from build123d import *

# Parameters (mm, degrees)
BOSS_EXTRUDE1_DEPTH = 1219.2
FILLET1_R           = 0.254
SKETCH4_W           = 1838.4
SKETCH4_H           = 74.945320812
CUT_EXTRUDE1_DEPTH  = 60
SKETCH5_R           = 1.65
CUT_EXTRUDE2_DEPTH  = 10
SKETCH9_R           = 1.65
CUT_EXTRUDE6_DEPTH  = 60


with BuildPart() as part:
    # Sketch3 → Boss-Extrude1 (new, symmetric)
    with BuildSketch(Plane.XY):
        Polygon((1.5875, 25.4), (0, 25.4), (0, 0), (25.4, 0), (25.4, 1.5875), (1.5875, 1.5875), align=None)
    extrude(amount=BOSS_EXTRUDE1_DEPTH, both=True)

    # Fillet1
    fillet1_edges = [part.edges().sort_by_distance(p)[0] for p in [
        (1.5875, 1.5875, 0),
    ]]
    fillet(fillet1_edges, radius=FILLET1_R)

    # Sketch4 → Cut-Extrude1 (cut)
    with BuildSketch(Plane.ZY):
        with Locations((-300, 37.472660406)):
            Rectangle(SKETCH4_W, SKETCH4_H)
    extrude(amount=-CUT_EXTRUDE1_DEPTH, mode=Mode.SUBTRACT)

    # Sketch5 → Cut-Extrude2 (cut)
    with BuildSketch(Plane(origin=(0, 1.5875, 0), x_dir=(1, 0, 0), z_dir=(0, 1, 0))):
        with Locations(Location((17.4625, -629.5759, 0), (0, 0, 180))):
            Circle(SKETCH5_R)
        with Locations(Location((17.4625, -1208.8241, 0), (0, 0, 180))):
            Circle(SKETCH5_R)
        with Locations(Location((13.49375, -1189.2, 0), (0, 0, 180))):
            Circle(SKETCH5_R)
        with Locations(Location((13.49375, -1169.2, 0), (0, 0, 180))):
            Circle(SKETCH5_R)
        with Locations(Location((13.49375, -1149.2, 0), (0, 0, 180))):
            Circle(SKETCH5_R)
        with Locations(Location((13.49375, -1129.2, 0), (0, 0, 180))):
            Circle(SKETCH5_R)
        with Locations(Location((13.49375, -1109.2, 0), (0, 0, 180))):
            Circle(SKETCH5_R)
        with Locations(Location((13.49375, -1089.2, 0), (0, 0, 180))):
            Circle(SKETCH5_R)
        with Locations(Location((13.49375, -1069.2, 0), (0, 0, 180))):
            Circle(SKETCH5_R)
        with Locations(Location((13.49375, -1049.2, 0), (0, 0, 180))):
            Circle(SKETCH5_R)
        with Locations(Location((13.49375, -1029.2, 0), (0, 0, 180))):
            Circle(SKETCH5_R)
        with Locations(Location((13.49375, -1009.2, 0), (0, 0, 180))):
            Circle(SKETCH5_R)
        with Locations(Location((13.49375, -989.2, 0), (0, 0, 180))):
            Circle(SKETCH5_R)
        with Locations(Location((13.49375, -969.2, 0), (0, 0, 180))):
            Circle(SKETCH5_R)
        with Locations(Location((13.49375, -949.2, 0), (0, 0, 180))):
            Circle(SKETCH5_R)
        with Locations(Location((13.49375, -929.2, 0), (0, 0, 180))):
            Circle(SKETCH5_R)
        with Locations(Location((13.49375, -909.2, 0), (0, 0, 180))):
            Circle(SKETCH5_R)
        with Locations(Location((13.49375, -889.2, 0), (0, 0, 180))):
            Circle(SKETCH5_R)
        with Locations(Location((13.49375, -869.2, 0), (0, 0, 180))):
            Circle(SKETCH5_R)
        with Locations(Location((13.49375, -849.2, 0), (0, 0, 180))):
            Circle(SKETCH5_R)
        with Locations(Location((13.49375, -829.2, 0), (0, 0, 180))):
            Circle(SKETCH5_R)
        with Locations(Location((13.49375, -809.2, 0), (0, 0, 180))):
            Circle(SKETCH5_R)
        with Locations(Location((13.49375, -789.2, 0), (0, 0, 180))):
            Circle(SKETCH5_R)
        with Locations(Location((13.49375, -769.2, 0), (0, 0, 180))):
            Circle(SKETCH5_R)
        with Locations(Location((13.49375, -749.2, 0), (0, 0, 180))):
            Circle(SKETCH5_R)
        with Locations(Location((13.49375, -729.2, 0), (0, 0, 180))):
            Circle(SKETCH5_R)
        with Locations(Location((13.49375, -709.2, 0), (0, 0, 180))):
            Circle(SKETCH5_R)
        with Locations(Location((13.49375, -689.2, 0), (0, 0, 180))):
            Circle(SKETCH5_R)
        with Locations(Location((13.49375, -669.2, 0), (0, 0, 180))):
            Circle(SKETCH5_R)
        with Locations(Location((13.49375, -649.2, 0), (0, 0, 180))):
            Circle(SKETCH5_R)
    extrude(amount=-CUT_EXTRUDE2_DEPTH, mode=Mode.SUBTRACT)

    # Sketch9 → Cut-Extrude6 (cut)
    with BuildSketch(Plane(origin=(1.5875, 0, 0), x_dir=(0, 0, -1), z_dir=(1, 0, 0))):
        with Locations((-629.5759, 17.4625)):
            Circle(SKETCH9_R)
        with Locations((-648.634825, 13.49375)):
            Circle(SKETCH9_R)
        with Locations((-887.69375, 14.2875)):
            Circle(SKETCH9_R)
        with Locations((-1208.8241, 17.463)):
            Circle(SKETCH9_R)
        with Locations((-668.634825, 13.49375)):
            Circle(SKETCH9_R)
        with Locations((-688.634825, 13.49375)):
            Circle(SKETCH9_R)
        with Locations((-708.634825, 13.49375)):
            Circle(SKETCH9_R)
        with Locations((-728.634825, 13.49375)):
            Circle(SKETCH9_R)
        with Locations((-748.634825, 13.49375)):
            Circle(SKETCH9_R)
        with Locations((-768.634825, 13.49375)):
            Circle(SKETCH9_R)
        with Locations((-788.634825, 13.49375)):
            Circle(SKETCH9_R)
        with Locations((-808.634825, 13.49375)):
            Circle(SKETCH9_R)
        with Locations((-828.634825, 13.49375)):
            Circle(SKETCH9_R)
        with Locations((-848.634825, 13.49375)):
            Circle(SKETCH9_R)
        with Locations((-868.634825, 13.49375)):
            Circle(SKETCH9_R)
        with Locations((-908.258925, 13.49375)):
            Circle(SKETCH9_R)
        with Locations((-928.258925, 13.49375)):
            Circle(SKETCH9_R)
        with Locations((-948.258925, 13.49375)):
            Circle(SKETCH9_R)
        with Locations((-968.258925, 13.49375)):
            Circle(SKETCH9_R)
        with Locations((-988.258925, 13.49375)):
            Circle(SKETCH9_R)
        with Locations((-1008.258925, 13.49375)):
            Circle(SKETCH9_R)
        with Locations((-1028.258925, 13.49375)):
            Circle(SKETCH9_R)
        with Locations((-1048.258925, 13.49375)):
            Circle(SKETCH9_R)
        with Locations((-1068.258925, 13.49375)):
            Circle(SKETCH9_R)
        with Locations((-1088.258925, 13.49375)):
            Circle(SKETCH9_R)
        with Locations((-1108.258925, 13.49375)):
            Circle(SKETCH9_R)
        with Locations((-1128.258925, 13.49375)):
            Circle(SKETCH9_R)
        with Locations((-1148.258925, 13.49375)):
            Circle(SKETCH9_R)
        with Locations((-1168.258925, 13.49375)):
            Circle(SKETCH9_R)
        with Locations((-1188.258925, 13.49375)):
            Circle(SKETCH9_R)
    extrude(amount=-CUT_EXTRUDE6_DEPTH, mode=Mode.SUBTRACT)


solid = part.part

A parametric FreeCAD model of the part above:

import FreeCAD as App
import Part
import Sketcher

V = App.Vector
Q = App.Units.Quantity


def edges_at(feature, points):
    """Names of the edges that pass closest to the given points."""
    edges = feature.Shape.Edges
    near = lambda p: min(range(len(edges)), key=lambda i: edges[i].distToShape(Part.Vertex(*p))[0])
    return sorted({f"Edge{near(p) + 1}" for p in points})

doc = App.newDocument("Part")
body = doc.addObject("PartDesign::Body", "Body")

# Sketch on XY plane
sketch1 = doc.addObject("Sketcher::SketchObject", "Sketch")
body.addObject(sketch1)
sketch1.AttachmentSupport = (doc.XY_Plane, [""])
sketch1.MapMode = "FlatFace"
sketch1.addGeometry([
    Part.LineSegment(V(1.5875, 25.4, 0), V(0, 25.4, 0)),  # 0
    Part.LineSegment(V(0, 25.4, 0), V(0, 0, 0)),  # 1
    Part.LineSegment(V(0, 0, 0), V(25.4, 0, 0)),  # 2
    Part.LineSegment(V(25.4, 0, 0), V(25.4, 1.5875, 0)),  # 3
    Part.LineSegment(V(25.4, 1.5875, 0), V(1.5875, 1.5875, 0)),  # 4
    Part.LineSegment(V(1.5875, 1.5875, 0), V(1.5875, 25.4, 0)),  # 5
], False)
sketch1.addConstraint([
    Sketcher.Constraint("Coincident", 0, 2, 1, 1),
    Sketcher.Constraint("Coincident", 1, 2, 2, 1),
    Sketcher.Constraint("Coincident", 2, 2, 3, 1),
    Sketcher.Constraint("Coincident", 3, 2, 4, 1),
    Sketcher.Constraint("Coincident", 4, 2, 5, 1),
    Sketcher.Constraint("Coincident", 5, 2, 0, 1),
    Sketcher.Constraint("Horizontal", 0),
    Sketcher.Constraint("Vertical", 1),
    Sketcher.Constraint("Horizontal", 2),
    Sketcher.Constraint("Vertical", 3),
    Sketcher.Constraint("Horizontal", 4),
    Sketcher.Constraint("Vertical", 5),
    Sketcher.Constraint("Coincident", 1, 2, -1, 1),
    Sketcher.Constraint("Equal", 2, 1),
    Sketcher.Constraint("Equal", 0, 3),
    Sketcher.Constraint("DistanceX", 2, 1, 2, 2, Q("1 in")),
    Sketcher.Constraint("DistanceX", 0, 2, 0, 1, Q("0.0625 in")),
])
pad1 = doc.addObject("PartDesign::Pad", "Pad")
body.addObject(pad1)
pad1.Profile = sketch1
pad1.Length = Q("96 in")
pad1.Midplane = True
doc.recompute()

fillet = doc.addObject("PartDesign::Fillet", "Fillet")
body.addObject(fillet)
fillet.Base = (pad1, edges_at(pad1, [(1.587, 1.587, 0)]))
fillet.Radius = Q("0.01 in")

# Sketch on YZ plane
sketch2 = doc.addObject("Sketcher::SketchObject", "Sketch001")
body.addObject(sketch2)
sketch2.AttachmentSupport = (doc.YZ_Plane, [""])
sketch2.MapMode = "FlatFace"
sketch2.addGeometry([
    Part.LineSegment(V(74.945321, -1219.2, 0), V(0, -1219.2, 0)),
    Part.LineSegment(V(0, -1219.2, 0), V(0, 619.2, 0)),
    Part.LineSegment(V(0, 619.2, 0), V(74.945321, 619.2, 0)),
    Part.LineSegment(V(74.945321, 619.2, 0), V(74.945321, -1219.2, 0)),
], False)
sketch2.addConstraint([
    Sketcher.Constraint("Coincident", 0, 2, 1, 1),
    Sketcher.Constraint("Coincident", 1, 2, 2, 1),
    Sketcher.Constraint("Coincident", 2, 2, 3, 1),
    Sketcher.Constraint("Coincident", 3, 2, 0, 1),
    Sketcher.Constraint("Horizontal", 0),
    Sketcher.Constraint("Vertical", 1),
    Sketcher.Constraint("Horizontal", 2),
    Sketcher.Constraint("Vertical", 3),
    Sketcher.Constraint("PointOnObject", 0, 2, -2),
    Sketcher.Constraint("DistanceY", 0, 2, -1, 1, Q("48 in")),
    Sketcher.Constraint("DistanceY", 1, 1, 1, 2, Q("1838.4 mm")),
    Sketcher.Constraint("DistanceX", 0, 2, 0, 1, Q("74.945321 mm")),
])
pocket1 = doc.addObject("PartDesign::Pocket", "Pocket")
body.addObject(pocket1)
pocket1.Profile = sketch2
pocket1.Length = 60
pocket1.Reversed = True

# Sketch on XZ plane
sketch3 = doc.addObject("Sketcher::SketchObject", "Sketch002")
body.addObject(sketch3)
sketch3.AttachmentSupport = (doc.XZ_Plane, [""])
sketch3.MapMode = "FlatFace"
sketch3.AttachmentOffset = App.Placement(V(0, 0, -0.0625 * 25.4), App.Rotation())
sketch3.addGeometry([
    Part.Circle(V(17.4625, 629.5759, 0), V(0, 0, 1), 1.65),  # 0
    Part.Circle(V(17.4625, 1208.8241, 0), V(0, 0, 1), 1.65),  # 1
    Part.Circle(V(13.49375, 1189.2, 0), V(0, 0, 1), 1.65),  # 2
    Part.Circle(V(13.49375, 1169.2, 0), V(0, 0, 1), 1.65),  # 3
    Part.Circle(V(13.49375, 1149.2, 0), V(0, 0, 1), 1.65),  # 4
    Part.Circle(V(13.49375, 1129.2, 0), V(0, 0, 1), 1.65),  # 5
    Part.Circle(V(13.49375, 1109.2, 0), V(0, 0, 1), 1.65),  # 6
    Part.Circle(V(13.49375, 1089.2, 0), V(0, 0, 1), 1.65),  # 7
    Part.Circle(V(13.49375, 1069.2, 0), V(0, 0, 1), 1.65),  # 8
    Part.Circle(V(13.49375, 1049.2, 0), V(0, 0, 1), 1.65),  # 9
    Part.Circle(V(13.49375, 1029.2, 0), V(0, 0, 1), 1.65),  # 10
    Part.Circle(V(13.49375, 1009.2, 0), V(0, 0, 1), 1.65),  # 11
    Part.Circle(V(13.49375, 989.2, 0), V(0, 0, 1), 1.65),  # 12
    Part.Circle(V(13.49375, 969.2, 0), V(0, 0, 1), 1.65),  # 13
    Part.Circle(V(13.49375, 949.2, 0), V(0, 0, 1), 1.65),  # 14
    Part.Circle(V(13.49375, 929.2, 0), V(0, 0, 1), 1.65),  # 15
    Part.Circle(V(13.49375, 909.2, 0), V(0, 0, 1), 1.65),  # 16
    Part.Circle(V(13.49375, 889.2, 0), V(0, 0, 1), 1.65),  # 17
    Part.Circle(V(13.49375, 869.2, 0), V(0, 0, 1), 1.65),  # 18
    Part.Circle(V(13.49375, 849.2, 0), V(0, 0, 1), 1.65),  # 19
    Part.Circle(V(13.49375, 829.2, 0), V(0, 0, 1), 1.65),  # 20
    Part.Circle(V(13.49375, 809.2, 0), V(0, 0, 1), 1.65),  # 21
    Part.Circle(V(13.49375, 789.2, 0), V(0, 0, 1), 1.65),  # 22
    Part.Circle(V(13.49375, 769.2, 0), V(0, 0, 1), 1.65),  # 23
    Part.Circle(V(13.49375, 749.2, 0), V(0, 0, 1), 1.65),  # 24
    Part.Circle(V(13.49375, 729.2, 0), V(0, 0, 1), 1.65),  # 25
    Part.Circle(V(13.49375, 709.2, 0), V(0, 0, 1), 1.65),  # 26
    Part.Circle(V(13.49375, 689.2, 0), V(0, 0, 1), 1.65),  # 27
    Part.Circle(V(13.49375, 669.2, 0), V(0, 0, 1), 1.65),  # 28
    Part.Circle(V(13.49375, 649.2, 0), V(0, 0, 1), 1.65),  # 29
], False)
sketch3.addConstraint([
    Sketcher.Constraint("Equal", 0, 1),
    Sketcher.Constraint("Equal", 1, 2),
    Sketcher.Constraint("Equal", 2, 3),
    Sketcher.Constraint("Equal", 3, 4),
    Sketcher.Constraint("Equal", 4, 5),
    Sketcher.Constraint("Equal", 5, 6),
    Sketcher.Constraint("Equal", 6, 7),
    Sketcher.Constraint("Equal", 7, 8),
    Sketcher.Constraint("Equal", 8, 9),
    Sketcher.Constraint("Equal", 9, 10),
    Sketcher.Constraint("Equal", 10, 11),
    Sketcher.Constraint("Equal", 11, 12),
    Sketcher.Constraint("Equal", 12, 13),
    Sketcher.Constraint("Equal", 13, 14),
    Sketcher.Constraint("Equal", 14, 15),
    Sketcher.Constraint("Equal", 15, 16),
    Sketcher.Constraint("Equal", 16, 17),
    Sketcher.Constraint("Equal", 17, 18),
    Sketcher.Constraint("Equal", 18, 19),
    Sketcher.Constraint("Equal", 19, 20),
    Sketcher.Constraint("Equal", 20, 21),
    Sketcher.Constraint("Equal", 21, 22),
    Sketcher.Constraint("Equal", 22, 23),
    Sketcher.Constraint("Equal", 23, 24),
    Sketcher.Constraint("Equal", 24, 25),
    Sketcher.Constraint("Equal", 25, 26),
    Sketcher.Constraint("Equal", 26, 27),
    Sketcher.Constraint("Equal", 27, 28),
    Sketcher.Constraint("Equal", 28, 29),
    Sketcher.Constraint("Vertical", 0, 3, 1, 3),
    Sketcher.Constraint("Vertical", 2, 3, 3, 3),
    Sketcher.Constraint("Vertical", 3, 3, 4, 3),
    Sketcher.Constraint("Vertical", 4, 3, 5, 3),
    Sketcher.Constraint("Vertical", 5, 3, 6, 3),
    Sketcher.Constraint("Vertical", 6, 3, 7, 3),
    Sketcher.Constraint("Vertical", 7, 3, 8, 3),
    Sketcher.Constraint("Vertical", 8, 3, 9, 3),
    Sketcher.Constraint("Vertical", 9, 3, 10, 3),
    Sketcher.Constraint("Vertical", 10, 3, 11, 3),
    Sketcher.Constraint("Vertical", 11, 3, 12, 3),
    Sketcher.Constraint("Vertical", 12, 3, 13, 3),
    Sketcher.Constraint("Vertical", 13, 3, 14, 3),
    Sketcher.Constraint("Vertical", 14, 3, 15, 3),
    Sketcher.Constraint("Vertical", 15, 3, 16, 3),
    Sketcher.Constraint("Vertical", 16, 3, 17, 3),
    Sketcher.Constraint("Vertical", 17, 3, 18, 3),
    Sketcher.Constraint("Vertical", 18, 3, 19, 3),
    Sketcher.Constraint("Vertical", 19, 3, 20, 3),
    Sketcher.Constraint("Vertical", 20, 3, 21, 3),
    Sketcher.Constraint("Vertical", 21, 3, 22, 3),
    Sketcher.Constraint("Vertical", 22, 3, 23, 3),
    Sketcher.Constraint("Vertical", 23, 3, 24, 3),
    Sketcher.Constraint("Vertical", 24, 3, 25, 3),
    Sketcher.Constraint("Vertical", 25, 3, 26, 3),
    Sketcher.Constraint("Vertical", 26, 3, 27, 3),
    Sketcher.Constraint("Vertical", 27, 3, 28, 3),
    Sketcher.Constraint("Vertical", 28, 3, 29, 3),
    Sketcher.Constraint("Diameter", 0, Q("3.3 mm")),
    Sketcher.Constraint("DistanceX", -1, 1, 0, 3, Q("0.6875 in")),
    Sketcher.Constraint("DistanceX", -1, 1, 2, 3, Q("0.53125 in")),
    Sketcher.Constraint("DistanceY", -1, 1, 1, 3, Q("47.5915 in")),
    Sketcher.Constraint("DistanceY", -1, 1, 0, 3, Q("629.5759 mm")),
    Sketcher.Constraint("DistanceY", -1, 1, 2, 3, Q("1189.2 mm")),
    Sketcher.Constraint("DistanceY", -1, 1, 3, 3, Q("1169.2 mm")),
    Sketcher.Constraint("DistanceY", -1, 1, 4, 3, Q("1149.2 mm")),
    Sketcher.Constraint("DistanceY", -1, 1, 5, 3, Q("1129.2 mm")),
    Sketcher.Constraint("DistanceY", -1, 1, 6, 3, Q("1109.2 mm")),
    Sketcher.Constraint("DistanceY", -1, 1, 7, 3, Q("1089.2 mm")),
    Sketcher.Constraint("DistanceY", -1, 1, 8, 3, Q("1069.2 mm")),
    Sketcher.Constraint("DistanceY", -1, 1, 9, 3, Q("1049.2 mm")),
    Sketcher.Constraint("DistanceY", -1, 1, 10, 3, Q("1029.2 mm")),
    Sketcher.Constraint("DistanceY", -1, 1, 11, 3, Q("1009.2 mm")),
    Sketcher.Constraint("DistanceY", -1, 1, 12, 3, Q("989.2 mm")),
    Sketcher.Constraint("DistanceY", -1, 1, 13, 3, Q("969.2 mm")),
    Sketcher.Constraint("DistanceY", -1, 1, 14, 3, Q("949.2 mm")),
    Sketcher.Constraint("DistanceY", -1, 1, 15, 3, Q("929.2 mm")),
    Sketcher.Constraint("DistanceY", -1, 1, 16, 3, Q("909.2 mm")),
    Sketcher.Constraint("DistanceY", -1, 1, 17, 3, Q("889.2 mm")),
    Sketcher.Constraint("DistanceY", -1, 1, 18, 3, Q("869.2 mm")),
    Sketcher.Constraint("DistanceY", -1, 1, 19, 3, Q("849.2 mm")),
    Sketcher.Constraint("DistanceY", -1, 1, 20, 3, Q("829.2 mm")),
    Sketcher.Constraint("DistanceY", -1, 1, 21, 3, Q("809.2 mm")),
    Sketcher.Constraint("DistanceY", -1, 1, 22, 3, Q("789.2 mm")),
    Sketcher.Constraint("DistanceY", -1, 1, 23, 3, Q("769.2 mm")),
    Sketcher.Constraint("DistanceY", -1, 1, 24, 3, Q("749.2 mm")),
    Sketcher.Constraint("DistanceY", -1, 1, 25, 3, Q("729.2 mm")),
    Sketcher.Constraint("DistanceY", -1, 1, 26, 3, Q("709.2 mm")),
    Sketcher.Constraint("DistanceY", -1, 1, 27, 3, Q("689.2 mm")),
    Sketcher.Constraint("DistanceY", -1, 1, 28, 3, Q("669.2 mm")),
    Sketcher.Constraint("DistanceY", -1, 1, 29, 3, Q("649.2 mm")),
])
pocket2 = doc.addObject("PartDesign::Pocket", "Pocket001")
body.addObject(pocket2)
pocket2.Profile = sketch3
pocket2.Length = 10
pocket2.Reversed = True

# Sketch on YZ plane
sketch4 = doc.addObject("Sketcher::SketchObject", "Sketch003")
body.addObject(sketch4)
sketch4.AttachmentSupport = (doc.YZ_Plane, [""])
sketch4.MapMode = "FlatFace"
sketch4.AttachmentOffset = App.Placement(V(0, 0, 0.0625 * 25.4), App.Rotation())
sketch4.addGeometry([
    Part.Circle(V(17.4625, 629.5759, 0), V(0, 0, 1), 1.65),  # 0
    Part.Circle(V(13.49375, 648.634825, 0), V(0, 0, 1), 1.65),  # 1
    Part.Circle(V(14.2875, 887.69375, 0), V(0, 0, 1), 1.65),  # 2
    Part.Circle(V(17.463, 1208.8241, 0), V(0, 0, 1), 1.65),  # 3
    Part.Circle(V(13.49375, 668.634825, 0), V(0, 0, 1), 1.65),  # 4
    Part.Circle(V(13.49375, 688.634825, 0), V(0, 0, 1), 1.65),  # 5
    Part.Circle(V(13.49375, 708.634825, 0), V(0, 0, 1), 1.65),  # 6
    Part.Circle(V(13.49375, 728.634825, 0), V(0, 0, 1), 1.65),  # 7
    Part.Circle(V(13.49375, 748.634825, 0), V(0, 0, 1), 1.65),  # 8
    Part.Circle(V(13.49375, 768.634825, 0), V(0, 0, 1), 1.65),  # 9
    Part.Circle(V(13.49375, 788.634825, 0), V(0, 0, 1), 1.65),  # 10
    Part.Circle(V(13.49375, 808.634825, 0), V(0, 0, 1), 1.65),  # 11
    Part.Circle(V(13.49375, 828.634825, 0), V(0, 0, 1), 1.65),  # 12
    Part.Circle(V(13.49375, 848.634825, 0), V(0, 0, 1), 1.65),  # 13
    Part.Circle(V(13.49375, 868.634825, 0), V(0, 0, 1), 1.65),  # 14
    Part.Circle(V(13.49375, 908.258925, 0), V(0, 0, 1), 1.65),  # 15
    Part.Circle(V(13.49375, 928.258925, 0), V(0, 0, 1), 1.65),  # 16
    Part.Circle(V(13.49375, 948.258925, 0), V(0, 0, 1), 1.65),  # 17
    Part.Circle(V(13.49375, 968.258925, 0), V(0, 0, 1), 1.65),  # 18
    Part.Circle(V(13.49375, 988.258925, 0), V(0, 0, 1), 1.65),  # 19
    Part.Circle(V(13.49375, 1008.258925, 0), V(0, 0, 1), 1.65),  # 20
    Part.Circle(V(13.49375, 1028.258925, 0), V(0, 0, 1), 1.65),  # 21
    Part.Circle(V(13.49375, 1048.258925, 0), V(0, 0, 1), 1.65),  # 22
    Part.Circle(V(13.49375, 1068.258925, 0), V(0, 0, 1), 1.65),  # 23
    Part.Circle(V(13.49375, 1088.258925, 0), V(0, 0, 1), 1.65),  # 24
    Part.Circle(V(13.49375, 1108.258925, 0), V(0, 0, 1), 1.65),  # 25
    Part.Circle(V(13.49375, 1128.258925, 0), V(0, 0, 1), 1.65),  # 26
    Part.Circle(V(13.49375, 1148.258925, 0), V(0, 0, 1), 1.65),  # 27
    Part.Circle(V(13.49375, 1168.258925, 0), V(0, 0, 1), 1.65),  # 28
    Part.Circle(V(13.49375, 1188.258925, 0), V(0, 0, 1), 1.65),  # 29
], False)
sketch4.addConstraint([
    Sketcher.Constraint("Equal", 0, 1),
    Sketcher.Constraint("Equal", 1, 2),
    Sketcher.Constraint("Equal", 2, 3),
    Sketcher.Constraint("Equal", 3, 4),
    Sketcher.Constraint("Equal", 4, 5),
    Sketcher.Constraint("Equal", 5, 6),
    Sketcher.Constraint("Equal", 6, 7),
    Sketcher.Constraint("Equal", 7, 8),
    Sketcher.Constraint("Equal", 8, 9),
    Sketcher.Constraint("Equal", 9, 10),
    Sketcher.Constraint("Equal", 10, 11),
    Sketcher.Constraint("Equal", 11, 12),
    Sketcher.Constraint("Equal", 12, 13),
    Sketcher.Constraint("Equal", 13, 14),
    Sketcher.Constraint("Equal", 14, 15),
    Sketcher.Constraint("Equal", 15, 16),
    Sketcher.Constraint("Equal", 16, 17),
    Sketcher.Constraint("Equal", 17, 18),
    Sketcher.Constraint("Equal", 18, 19),
    Sketcher.Constraint("Equal", 19, 20),
    Sketcher.Constraint("Equal", 20, 21),
    Sketcher.Constraint("Equal", 21, 22),
    Sketcher.Constraint("Equal", 22, 23),
    Sketcher.Constraint("Equal", 23, 24),
    Sketcher.Constraint("Equal", 24, 25),
    Sketcher.Constraint("Equal", 25, 26),
    Sketcher.Constraint("Equal", 26, 27),
    Sketcher.Constraint("Equal", 27, 28),
    Sketcher.Constraint("Equal", 28, 29),
    Sketcher.Constraint("Vertical", 1, 3, 4, 3),
    Sketcher.Constraint("Vertical", 4, 3, 5, 3),
    Sketcher.Constraint("Vertical", 5, 3, 6, 3),
    Sketcher.Constraint("Vertical", 6, 3, 7, 3),
    Sketcher.Constraint("Vertical", 7, 3, 8, 3),
    Sketcher.Constraint("Vertical", 8, 3, 9, 3),
    Sketcher.Constraint("Vertical", 9, 3, 10, 3),
    Sketcher.Constraint("Vertical", 10, 3, 11, 3),
    Sketcher.Constraint("Vertical", 11, 3, 12, 3),
    Sketcher.Constraint("Vertical", 12, 3, 13, 3),
    Sketcher.Constraint("Vertical", 13, 3, 14, 3),
    Sketcher.Constraint("Vertical", 14, 3, 15, 3),
    Sketcher.Constraint("Vertical", 15, 3, 16, 3),
    Sketcher.Constraint("Vertical", 16, 3, 17, 3),
    Sketcher.Constraint("Vertical", 17, 3, 18, 3),
    Sketcher.Constraint("Vertical", 18, 3, 19, 3),
    Sketcher.Constraint("Vertical", 19, 3, 20, 3),
    Sketcher.Constraint("Vertical", 20, 3, 21, 3),
    Sketcher.Constraint("Vertical", 21, 3, 22, 3),
    Sketcher.Constraint("Vertical", 22, 3, 23, 3),
    Sketcher.Constraint("Vertical", 23, 3, 24, 3),
    Sketcher.Constraint("Vertical", 24, 3, 25, 3),
    Sketcher.Constraint("Vertical", 25, 3, 26, 3),
    Sketcher.Constraint("Vertical", 26, 3, 27, 3),
    Sketcher.Constraint("Vertical", 27, 3, 28, 3),
    Sketcher.Constraint("Vertical", 28, 3, 29, 3),
    Sketcher.Constraint("Diameter", 0, Q("3.3 mm")),
    Sketcher.Constraint("DistanceX", -1, 1, 0, 3, Q("0.6875 in")),
    Sketcher.Constraint("DistanceX", -1, 1, 1, 3, Q("0.53125 in")),
    Sketcher.Constraint("DistanceX", -1, 1, 2, 3, Q("0.5625 in")),
    Sketcher.Constraint("DistanceY", -1, 1, 3, 3, Q("47.5915 in")),
    Sketcher.Constraint("DistanceY", -1, 1, 0, 3, Q("629.5759 mm")),
    Sketcher.Constraint("DistanceX", -1, 1, 3, 3, Q("17.463 mm")),
    Sketcher.Constraint("DistanceY", 1, 3, 4, 3, Q("20 mm")),
    Sketcher.Constraint("DistanceY", 4, 3, 5, 3, Q("20 mm")),
    Sketcher.Constraint("DistanceY", 5, 3, 6, 3, Q("20 mm")),
    Sketcher.Constraint("DistanceY", 6, 3, 7, 3, Q("20 mm")),
    Sketcher.Constraint("DistanceY", 7, 3, 8, 3, Q("20 mm")),
    Sketcher.Constraint("DistanceY", 8, 3, 9, 3, Q("20 mm")),
    Sketcher.Constraint("DistanceY", 9, 3, 10, 3, Q("20 mm")),
    Sketcher.Constraint("DistanceY", 10, 3, 11, 3, Q("20 mm")),
    Sketcher.Constraint("DistanceY", 11, 3, 12, 3, Q("20 mm")),
    Sketcher.Constraint("DistanceY", 12, 3, 13, 3, Q("20 mm")),
    Sketcher.Constraint("DistanceY", 13, 3, 14, 3, Q("20 mm")),
    Sketcher.Constraint("DistanceY", 14, 3, 15, 3, Q("39.6241 mm")),
    Sketcher.Constraint("DistanceY", 15, 3, 16, 3, Q("20 mm")),
    Sketcher.Constraint("DistanceY", 16, 3, 17, 3, Q("20 mm")),
    Sketcher.Constraint("DistanceY", 17, 3, 18, 3, Q("20 mm")),
    Sketcher.Constraint("DistanceY", 18, 3, 19, 3, Q("20 mm")),
    Sketcher.Constraint("DistanceY", 19, 3, 20, 3, Q("20 mm")),
    Sketcher.Constraint("DistanceY", 20, 3, 21, 3, Q("20 mm")),
    Sketcher.Constraint("DistanceY", 21, 3, 22, 3, Q("20 mm")),
    Sketcher.Constraint("DistanceY", 22, 3, 23, 3, Q("20 mm")),
    Sketcher.Constraint("DistanceY", 23, 3, 24, 3, Q("20 mm")),
    Sketcher.Constraint("DistanceY", 24, 3, 25, 3, Q("20 mm")),
    Sketcher.Constraint("DistanceY", 25, 3, 26, 3, Q("20 mm")),
    Sketcher.Constraint("DistanceY", 26, 3, 27, 3, Q("20 mm")),
    Sketcher.Constraint("DistanceY", 27, 3, 28, 3, Q("20 mm")),
    Sketcher.Constraint("DistanceY", 28, 3, 29, 3, Q("20 mm")),
    Sketcher.Constraint("DistanceY", -1, 1, 2, 3, Q("887.69375 mm")),
    Sketcher.Constraint("DistanceY", -1, 1, 1, 3, Q("648.634825 mm")),
])
pocket3 = doc.addObject("PartDesign::Pocket", "Pocket002")
body.addObject(pocket3)
pocket3.Profile = sketch4
pocket3.Length = 60

doc.recompute()
